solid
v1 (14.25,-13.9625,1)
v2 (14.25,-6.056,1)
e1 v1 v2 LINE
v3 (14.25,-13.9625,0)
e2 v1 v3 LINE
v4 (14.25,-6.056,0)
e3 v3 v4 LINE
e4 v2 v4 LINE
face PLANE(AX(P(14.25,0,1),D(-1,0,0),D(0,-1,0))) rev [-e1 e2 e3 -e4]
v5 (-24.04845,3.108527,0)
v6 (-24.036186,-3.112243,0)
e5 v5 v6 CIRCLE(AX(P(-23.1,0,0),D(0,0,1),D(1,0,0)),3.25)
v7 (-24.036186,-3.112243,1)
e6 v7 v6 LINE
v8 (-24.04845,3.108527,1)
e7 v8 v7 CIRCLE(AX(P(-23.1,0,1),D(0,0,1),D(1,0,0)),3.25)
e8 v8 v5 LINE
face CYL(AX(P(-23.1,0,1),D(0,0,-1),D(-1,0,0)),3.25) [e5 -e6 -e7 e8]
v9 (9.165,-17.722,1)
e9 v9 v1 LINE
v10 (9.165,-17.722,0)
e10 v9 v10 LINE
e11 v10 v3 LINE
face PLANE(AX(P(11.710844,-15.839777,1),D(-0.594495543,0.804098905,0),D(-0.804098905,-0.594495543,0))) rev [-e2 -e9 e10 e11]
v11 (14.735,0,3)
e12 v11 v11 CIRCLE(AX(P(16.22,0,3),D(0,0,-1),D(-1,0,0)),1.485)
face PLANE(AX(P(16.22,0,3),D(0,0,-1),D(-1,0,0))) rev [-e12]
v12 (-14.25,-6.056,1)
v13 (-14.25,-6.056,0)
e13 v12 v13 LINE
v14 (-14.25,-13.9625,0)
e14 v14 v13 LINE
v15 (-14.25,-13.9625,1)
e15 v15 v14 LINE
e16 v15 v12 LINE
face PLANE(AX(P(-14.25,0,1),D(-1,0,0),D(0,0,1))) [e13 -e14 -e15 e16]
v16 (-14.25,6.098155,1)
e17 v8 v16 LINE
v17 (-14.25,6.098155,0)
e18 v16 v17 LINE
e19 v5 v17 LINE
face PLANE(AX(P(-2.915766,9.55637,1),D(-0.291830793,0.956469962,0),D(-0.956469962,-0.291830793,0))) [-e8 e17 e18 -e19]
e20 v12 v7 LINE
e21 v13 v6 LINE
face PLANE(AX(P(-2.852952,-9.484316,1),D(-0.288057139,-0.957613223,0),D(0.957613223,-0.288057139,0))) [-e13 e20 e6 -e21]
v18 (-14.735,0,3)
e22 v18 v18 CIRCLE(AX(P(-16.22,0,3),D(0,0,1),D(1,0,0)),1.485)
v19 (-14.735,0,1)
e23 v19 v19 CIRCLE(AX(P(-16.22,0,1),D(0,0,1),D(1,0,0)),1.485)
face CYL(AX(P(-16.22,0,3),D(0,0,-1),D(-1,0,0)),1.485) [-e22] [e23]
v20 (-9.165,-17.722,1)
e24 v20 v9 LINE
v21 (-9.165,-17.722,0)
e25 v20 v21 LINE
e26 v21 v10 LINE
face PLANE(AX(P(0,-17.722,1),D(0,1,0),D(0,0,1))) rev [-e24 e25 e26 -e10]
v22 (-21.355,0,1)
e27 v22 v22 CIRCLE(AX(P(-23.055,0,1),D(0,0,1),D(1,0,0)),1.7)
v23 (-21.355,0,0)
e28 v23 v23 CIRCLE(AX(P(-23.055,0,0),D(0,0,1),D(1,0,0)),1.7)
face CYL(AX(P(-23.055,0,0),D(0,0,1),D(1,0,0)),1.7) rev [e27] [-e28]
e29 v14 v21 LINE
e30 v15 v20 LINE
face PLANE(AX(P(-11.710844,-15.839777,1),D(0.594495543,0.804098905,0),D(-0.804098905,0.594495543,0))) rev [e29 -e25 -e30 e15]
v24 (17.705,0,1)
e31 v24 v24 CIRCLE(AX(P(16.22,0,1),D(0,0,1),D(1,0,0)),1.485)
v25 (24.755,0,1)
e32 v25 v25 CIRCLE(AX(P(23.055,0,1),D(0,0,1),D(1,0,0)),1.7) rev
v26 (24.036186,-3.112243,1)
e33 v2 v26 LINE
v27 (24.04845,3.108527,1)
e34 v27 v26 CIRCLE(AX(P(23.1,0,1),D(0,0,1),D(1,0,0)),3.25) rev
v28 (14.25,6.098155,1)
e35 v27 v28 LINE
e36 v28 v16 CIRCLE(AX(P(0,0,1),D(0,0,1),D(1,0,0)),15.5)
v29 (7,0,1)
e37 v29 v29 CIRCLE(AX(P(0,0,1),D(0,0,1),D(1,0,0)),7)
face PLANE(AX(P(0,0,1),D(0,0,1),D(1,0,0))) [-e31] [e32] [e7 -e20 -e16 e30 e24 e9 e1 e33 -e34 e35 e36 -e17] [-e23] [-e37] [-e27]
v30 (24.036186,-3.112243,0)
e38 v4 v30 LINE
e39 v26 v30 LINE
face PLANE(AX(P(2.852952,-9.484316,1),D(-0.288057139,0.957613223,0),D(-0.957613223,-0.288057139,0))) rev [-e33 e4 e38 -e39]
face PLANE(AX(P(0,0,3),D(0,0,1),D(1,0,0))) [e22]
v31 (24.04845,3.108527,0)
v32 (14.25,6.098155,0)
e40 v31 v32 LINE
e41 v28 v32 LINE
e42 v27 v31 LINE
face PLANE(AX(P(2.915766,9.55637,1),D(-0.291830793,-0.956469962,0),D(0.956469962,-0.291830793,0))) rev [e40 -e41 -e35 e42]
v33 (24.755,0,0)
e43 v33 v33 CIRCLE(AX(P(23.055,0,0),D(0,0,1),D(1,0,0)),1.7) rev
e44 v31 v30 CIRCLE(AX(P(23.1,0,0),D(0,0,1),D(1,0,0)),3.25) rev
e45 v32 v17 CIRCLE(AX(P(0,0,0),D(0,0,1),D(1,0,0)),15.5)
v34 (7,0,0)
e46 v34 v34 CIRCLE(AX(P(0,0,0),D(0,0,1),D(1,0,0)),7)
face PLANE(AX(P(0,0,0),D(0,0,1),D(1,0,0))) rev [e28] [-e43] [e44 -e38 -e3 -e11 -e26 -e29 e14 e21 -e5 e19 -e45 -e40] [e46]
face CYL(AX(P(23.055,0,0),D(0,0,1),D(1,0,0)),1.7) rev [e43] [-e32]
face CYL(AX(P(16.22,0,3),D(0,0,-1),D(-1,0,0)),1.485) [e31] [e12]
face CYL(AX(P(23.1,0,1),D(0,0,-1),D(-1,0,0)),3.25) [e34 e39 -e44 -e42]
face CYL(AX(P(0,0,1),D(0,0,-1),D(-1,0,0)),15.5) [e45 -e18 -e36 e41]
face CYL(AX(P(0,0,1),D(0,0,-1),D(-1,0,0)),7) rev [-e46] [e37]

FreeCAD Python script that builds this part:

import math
import FreeCAD as App
import Part
import Sketcher

V = App.Vector

doc = App.newDocument("Part")
body = doc.addObject("PartDesign::Body", "Body")

# Sketch on XY plane
sketch1 = body.newObject("Sketcher::SketchObject", "Sketch")
sketch1.AttachmentSupport = (doc.getObject("XY_Plane"), [""])
sketch1.MapMode = "FlatFace"
sketch1.addGeometry(Part.LineSegment(V(-9.2, -17.7, 0), V(9.2, -17.7, 0)), False)
sketch1.addGeometry(Part.LineSegment(V(9.2, -17.7, 0), V(14.2, -14, 0)), False)
sketch1.addGeometry(Part.LineSegment(V(14.2, -14, 0), V(14.2, -6.1, 0)), False)
sketch1.addGeometry(Part.LineSegment(V(14.2, -6.1, 0), V(24, -3.1, 0)), False)
sketch1.addGeometry(Part.ArcOfCircle(Part.Circle(V(23.1, 0, 0), V(0, 0, 1), 3.2), math.radians(-73), math.radians(73)), False)
sketch1.addGeometry(Part.LineSegment(V(24, 3.1, 0), V(14.2, 6.1, 0)), False)
sketch1.addGeometry(Part.ArcOfCircle(Part.Circle(V(0, 0, 0), V(0, 0, 1), 15.5), math.radians(23), math.radians(90)), False)
sketch1.addGeometry(Part.ArcOfCircle(Part.Circle(V(0, 0, 0), V(0, 0, 1), 15.5), math.radians(90), math.radians(157)), False)
sketch1.addGeometry(Part.LineSegment(V(-14.2, 6.1, 0), V(-24, 3.1, 0)), False)
sketch1.addGeometry(Part.ArcOfCircle(Part.Circle(V(-23.1, 0, 0), V(0, 0, 1), 3.2), math.radians(107), math.radians(253)), False)
sketch1.addGeometry(Part.LineSegment(V(-24, -3.1, 0), V(-14.2, -6.1, 0)), False)
sketch1.addGeometry(Part.LineSegment(V(-14.2, -6.1, 0), V(-14.2, -14, 0)), False)
sketch1.addGeometry(Part.LineSegment(V(-14.2, -14, 0), V(-9.2, -17.7, 0)), False)
sketch1.addGeometry(Part.Circle(V(0, 0, 0), V(0, 0, 1), 7), False)
sketch1.addConstraint(Sketcher.Constraint("Coincident", 0, 2, 1, 1))
sketch1.addConstraint(Sketcher.Constraint("Coincident", 1, 2, 2, 1))
sketch1.addConstraint(Sketcher.Constraint("Coincident", 2, 2, 3, 1))
sketch1.addConstraint(Sketcher.Constraint("Tangent", 3, 2, 4, 1))
sketch1.addConstraint(Sketcher.Constraint("Tangent", 4, 2, 5, 1))
sketch1.addConstraint(Sketcher.Constraint("Coincident", 5, 2, 6, 1))
sketch1.addConstraint(Sketcher.Constraint("Tangent", 6, 2, 7, 1))
sketch1.addConstraint(Sketcher.Constraint("Coincident", 7, 2, 8, 1))
sketch1.addConstraint(Sketcher.Constraint("Tangent", 8, 2, 9, 1))
sketch1.addConstraint(Sketcher.Constraint("Tangent", 9, 2, 10, 1))
sketch1.addConstraint(Sketcher.Constraint("Coincident", 10, 2, 11, 1))
sketch1.addConstraint(Sketcher.Constraint("Coincident", 11, 2, 12, 1))
sketch1.addConstraint(Sketcher.Constraint("Coincident", 12, 2, 0, 1))
sketch1.addConstraint(Sketcher.Constraint("Horizontal", 0))
sketch1.addConstraint(Sketcher.Constraint("Vertical", 2))
sketch1.addConstraint(Sketcher.Constraint("Vertical", 11))
sketch1.addConstraint(Sketcher.Constraint("Coincident", 6, 3, -1, 1))
sketch1.addConstraint(Sketcher.Constraint("Coincident", 13, 3, -1, 1))
sketch1.addConstraint(Sketcher.Constraint("Equal", 6, 7))
sketch1.addConstraint(Sketcher.Constraint("Equal", 4, 9))
sketch1.addConstraint(Sketcher.Constraint("Symmetric", 4, 3, 9, 3, -1, 1))
sketch1.addConstraint(Sketcher.Constraint("Symmetric", 4, 2, 8, 2, -2))
sketch1.addConstraint(Sketcher.Constraint("Symmetric", 2, 2, 10, 2, -2))
sketch1.addConstraint(Sketcher.Constraint("PointOnObject", 6, 2, -2))
sketch1.addConstraint(Sketcher.Constraint("Horizontal", 1, 2, 11, 2))
sketch1.addConstraint(Sketcher.Constraint("Vertical", 2, 2, 5, 2))
sketch1.addConstraint(Sketcher.Constraint("Equal", 1, 12))
sketch1.addConstraint(Sketcher.Constraint("Diameter", 13, 14.0))
sketch1.addConstraint(Sketcher.Constraint("Radius", 6, 15.5))
sketch1.addConstraint(Sketcher.Constraint("Radius", 4, 3.25))
sketch1.addConstraint(Sketcher.Constraint("DistanceX", 0, 1, 0, 2, 18.33))
sketch1.addConstraint(Sketcher.Constraint("DistanceX", -1, 1, 4, 3, 23.1))
sketch1.addConstraint(Sketcher.Constraint("DistanceX", -1, 1, 1, 2, 14.25))
sketch1.addConstraint(Sketcher.Constraint("DistanceY", 2, 1, 2, 2, 7.9065))
sketch1.addConstraint(Sketcher.Constraint("DistanceY", 0, 2, -1, 1, 17.722))
sketch1.addConstraint(Sketcher.Constraint("DistanceY", 2, 2, -1, 1, 6.056))
pad1 = body.newObject("PartDesign::Pad", "Pad")
pad1.Profile = sketch1
pad1.Length = 1

# Sketch on XY plane
sketch2 = body.newObject("Sketcher::SketchObject", "Sketch001")
sketch2.AttachmentSupport = (doc.getObject("XY_Plane"), [""])
sketch2.MapMode = "FlatFace"
sketch2.AttachmentOffset = App.Placement(V(0, 0, 1), App.Rotation())
sketch2.addGeometry(Part.Circle(V(-16.2, 0, 0), V(0, 0, 1), 1.5), False)
sketch2.addGeometry(Part.Circle(V(16.2, 0, 0), V(0, 0, 1), 1.5), False)
sketch2.addConstraint(Sketcher.Constraint("Equal", 0, 1))
sketch2.addConstraint(Sketcher.Constraint("Symmetric", 0, 3, 1, 3, -1, 1))
sketch2.addConstraint(Sketcher.Constraint("PointOnObject", 0, 3, -1))
sketch2.addConstraint(Sketcher.Constraint("Diameter", 0, 2.97))
sketch2.addConstraint(Sketcher.Constraint("DistanceX", 0, 3, -1, 1, 16.22))
pad2 = body.newObject("PartDesign::Pad", "Pad001")
pad2.Profile = sketch2
pad2.Length = 2

# Sketch on XY plane
sketch3 = body.newObject("Sketcher::SketchObject", "Sketch002")
sketch3.AttachmentSupport = (doc.getObject("XY_Plane"), [""])
sketch3.MapMode = "FlatFace"
sketch3.AttachmentOffset = App.Placement(V(0, 0, 1), App.Rotation())
sketch3.addGeometry(Part.Circle(V(-23.1, 0, 0), V(0, 0, 1), 1.7), False)
sketch3.addGeometry(Part.Circle(V(23.1, 0, 0), V(0, 0, 1), 1.7), False)
sketch3.addConstraint(Sketcher.Constraint("Equal", 0, 1))
sketch3.addConstraint(Sketcher.Constraint("Symmetric", 0, 3, 1, 3, -1, 1))
sketch3.addConstraint(Sketcher.Constraint("PointOnObject", 0, 3, -1))
sketch3.addConstraint(Sketcher.Constraint("Diameter", 0, 3.4))
sketch3.addConstraint(Sketcher.Constraint("DistanceX", 0, 3, 1, 3, 46.11))
pocket1 = body.newObject("PartDesign::Pocket", "Pocket")
pocket1.Profile = sketch3
pocket1.Type = "ThroughAll"

doc.recompute()
